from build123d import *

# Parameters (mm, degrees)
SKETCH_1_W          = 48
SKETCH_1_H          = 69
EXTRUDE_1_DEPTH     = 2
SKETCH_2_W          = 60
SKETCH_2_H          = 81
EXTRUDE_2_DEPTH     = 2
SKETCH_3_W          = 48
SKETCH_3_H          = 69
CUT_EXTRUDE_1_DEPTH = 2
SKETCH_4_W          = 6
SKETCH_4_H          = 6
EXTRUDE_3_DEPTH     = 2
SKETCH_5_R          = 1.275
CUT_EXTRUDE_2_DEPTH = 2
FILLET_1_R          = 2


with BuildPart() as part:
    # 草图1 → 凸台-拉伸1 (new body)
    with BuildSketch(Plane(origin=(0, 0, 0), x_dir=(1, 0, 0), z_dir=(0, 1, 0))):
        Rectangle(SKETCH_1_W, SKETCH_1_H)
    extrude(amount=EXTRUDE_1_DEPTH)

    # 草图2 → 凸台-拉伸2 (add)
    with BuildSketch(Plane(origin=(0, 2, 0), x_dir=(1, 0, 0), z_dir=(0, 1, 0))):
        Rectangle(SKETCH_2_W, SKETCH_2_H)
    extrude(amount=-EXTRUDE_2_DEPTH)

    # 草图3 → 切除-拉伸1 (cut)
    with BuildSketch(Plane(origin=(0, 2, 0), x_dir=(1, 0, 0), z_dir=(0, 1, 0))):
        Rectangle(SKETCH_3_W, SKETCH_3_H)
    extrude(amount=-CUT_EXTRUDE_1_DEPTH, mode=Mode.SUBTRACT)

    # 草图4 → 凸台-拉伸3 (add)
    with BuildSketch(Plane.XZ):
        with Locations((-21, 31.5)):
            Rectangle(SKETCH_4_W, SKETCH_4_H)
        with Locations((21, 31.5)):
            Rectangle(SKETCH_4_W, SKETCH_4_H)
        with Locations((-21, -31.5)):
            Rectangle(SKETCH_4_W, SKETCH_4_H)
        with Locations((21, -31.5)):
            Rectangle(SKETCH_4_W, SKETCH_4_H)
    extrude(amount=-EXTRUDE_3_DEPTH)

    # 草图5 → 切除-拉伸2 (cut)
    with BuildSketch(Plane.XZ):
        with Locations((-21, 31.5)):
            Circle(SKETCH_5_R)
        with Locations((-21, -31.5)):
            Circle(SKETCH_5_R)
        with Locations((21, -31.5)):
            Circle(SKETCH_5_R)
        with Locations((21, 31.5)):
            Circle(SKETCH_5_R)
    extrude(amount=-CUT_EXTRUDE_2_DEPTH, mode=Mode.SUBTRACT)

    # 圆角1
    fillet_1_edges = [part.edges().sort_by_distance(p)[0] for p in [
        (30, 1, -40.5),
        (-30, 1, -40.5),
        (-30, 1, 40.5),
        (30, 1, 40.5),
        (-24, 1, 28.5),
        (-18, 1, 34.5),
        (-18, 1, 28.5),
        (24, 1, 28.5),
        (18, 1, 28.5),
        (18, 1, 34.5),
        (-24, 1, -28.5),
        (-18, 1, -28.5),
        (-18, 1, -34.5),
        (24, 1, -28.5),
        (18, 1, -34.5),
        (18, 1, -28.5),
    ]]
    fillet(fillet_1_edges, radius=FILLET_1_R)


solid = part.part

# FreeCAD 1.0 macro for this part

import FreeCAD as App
import Part
import Sketcher


def edges_at(feature, points):
    """Names of the edges that pass closest to the given points."""
    edges = feature.Shape.Edges
    near = lambda p: min(range(len(edges)), key=lambda i: edges[i].distToShape(Part.Vertex(*p))[0])
    return sorted({f"Edge{near(p) + 1}" for p in points})


def add_polygon(sketch, points):
    """Adds a closed chain of lines whose ends are joined by coincident constraints."""
    first, n = sketch.GeometryCount, len(points)
    for a, b in zip(points, points[1:] + points[:1]):
        sketch.addGeometry(Part.LineSegment(App.Vector(*a, 0), App.Vector(*b, 0)), False)
    for i in range(n):
        sketch.addConstraint(Sketcher.Constraint("Coincident", first + i, 2, first + (i + 1) % n, 1))

doc = App.newDocument("Part")
body = doc.addObject("PartDesign::Body", "Body")

sketch1 = body.newObject("Sketcher::SketchObject", "Sketch")
sketch1.AttachmentSupport = (doc.getObject("XZ_Plane"), [""])
sketch1.MapMode = "FlatFace"
add_polygon(sketch1, [(-24, -34), (-24, 34), (24, 34), (24, -34)])
sketch1.addConstraint(Sketcher.Constraint("Vertical", 0))
sketch1.addConstraint(Sketcher.Constraint("Horizontal", 1))
sketch1.addConstraint(Sketcher.Constraint("Vertical", 2))
sketch1.addConstraint(Sketcher.Constraint("Horizontal", 3))
sketch1.addConstraint(Sketcher.Constraint("Symmetric", 0, 2, 2, 2, -1, 1))
sketch1.addConstraint(Sketcher.Constraint("DistanceX", 1, 1, 1, 2, 48.0))
sketch1.addConstraint(Sketcher.Constraint("DistanceY", 0, 1, 0, 2, 69.0))
pad1 = body.newObject("PartDesign::Pad", "Pad")
pad1.Profile = sketch1
pad1.Length = 2
pad1.Reversed = True

sketch2 = body.newObject("Sketcher::SketchObject", "Sketch001")
sketch2.AttachmentSupport = (doc.getObject("XZ_Plane"), [""])
sketch2.MapMode = "FlatFace"
sketch2.AttachmentOffset = App.Placement(App.Vector(0, 0, -2), App.Rotation())
add_polygon(sketch2, [(-30, -40), (-30, 40), (30, 40), (30, -40)])
sketch2.addConstraint(Sketcher.Constraint("Vertical", 0))
sketch2.addConstraint(Sketcher.Constraint("Horizontal", 1))
sketch2.addConstraint(Sketcher.Constraint("Vertical", 2))
sketch2.addConstraint(Sketcher.Constraint("Horizontal", 3))
sketch2.addConstraint(Sketcher.Constraint("Symmetric", 0, 2, 2, 2, -1, 1))
sketch2.addConstraint(Sketcher.Constraint("DistanceX", 1, 1, 1, 2, 60.0))
sketch2.addConstraint(Sketcher.Constraint("DistanceY", 0, 1, 0, 2, 81.0))
pad2 = body.newObject("PartDesign::Pad", "Pad001")
pad2.Profile = sketch2
pad2.Length = 2

sketch3 = body.newObject("Sketcher::SketchObject", "Sketch002")
sketch3.AttachmentSupport = (doc.getObject("XZ_Plane"), [""])
sketch3.MapMode = "FlatFace"
sketch3.AttachmentOffset = App.Placement(App.Vector(0, 0, -2), App.Rotation())
add_polygon(sketch3, [(-24, -34), (-24, 34), (24, 34), (24, -34)])
sketch3.addConstraint(Sketcher.Constraint("Vertical", 0))
sketch3.addConstraint(Sketcher.Constraint("Horizontal", 1))
sketch3.addConstraint(Sketcher.Constraint("Vertical", 2))
sketch3.addConstraint(Sketcher.Constraint("Horizontal", 3))
sketch3.addConstraint(Sketcher.Constraint("Symmetric", 0, 2, 2, 2, -1, 1))
sketch3.addConstraint(Sketcher.Constraint("DistanceX", 1, 1, 1, 2, 48.0))
sketch3.addConstraint(Sketcher.Constraint("DistanceY", 0, 1, 0, 2, 69.0))
pocket1 = body.newObject("PartDesign::Pocket", "Pocket")
pocket1.Profile = sketch3
pocket1.Length = 2
pocket1.Reversed = True

sketch4 = body.newObject("Sketcher::SketchObject", "Sketch003")
sketch4.AttachmentSupport = (doc.getObject("XZ_Plane"), [""])
sketch4.MapMode = "FlatFace"
add_polygon(sketch4, [(-24, 34), (-24, 28), (-18, 28), (-18, 34)])
add_polygon(sketch4, [(18, 34), (18, 28), (24, 28), (24, 34)])
add_polygon(sketch4, [(-24, -28), (-24, -34), (-18, -34), (-18, -28)])
add_polygon(sketch4, [(18, -28), (18, -34), (24, -34), (24, -28)])
sketch4.addConstraint(Sketcher.Constraint("Vertical", 0))
sketch4.addConstraint(Sketcher.Constraint("Horizontal", 1))
sketch4.addConstraint(Sketcher.Constraint("Vertical", 2))
sketch4.addConstraint(Sketcher.Constraint("Horizontal", 3))
sketch4.addConstraint(Sketcher.Constraint("Vertical", 4))
sketch4.addConstraint(Sketcher.Constraint("Horizontal", 5))
sketch4.addConstraint(Sketcher.Constraint("Vertical", 6))
sketch4.addConstraint(Sketcher.Constraint("Horizontal", 7))
sketch4.addConstraint(Sketcher.Constraint("Vertical", 8))
sketch4.addConstraint(Sketcher.Constraint("Horizontal", 9))
sketch4.addConstraint(Sketcher.Constraint("Vertical", 10))
sketch4.addConstraint(Sketcher.Constraint("Horizontal", 11))
sketch4.addConstraint(Sketcher.Constraint("Vertical", 12))
sketch4.addConstraint(Sketcher.Constraint("Horizontal", 13))
sketch4.addConstraint(Sketcher.Constraint("Vertical", 14))
sketch4.addConstraint(Sketcher.Constraint("Horizontal", 15))
sketch4.addConstraint(Sketcher.Constraint("Symmetric", 6, 2, 8, 2, -1, 1))
sketch4.addConstraint(Sketcher.Constraint("Symmetric", 4, 2, 10, 2, -1, 1))
sketch4.addConstraint(Sketcher.Constraint("Symmetric", 2, 2, 12, 2, -1, 1))
sketch4.addConstraint(Sketcher.Constraint("Symmetric", 0, 2, 14, 2, -1, 1))
sketch4.addConstraint(Sketcher.Constraint("Symmetric", 1, 2, 4, 2, -2))
sketch4.addConstraint(Sketcher.Constraint("Symmetric", 3, 2, 6, 2, -2))
sketch4.addConstraint(Sketcher.Constraint("Equal", 15, 0))
sketch4.addConstraint(Sketcher.Constraint("DistanceX", 1, 1, 1, 2, 6.0))
sketch4.addConstraint(Sketcher.Constraint("DistanceX", 0, 2, -1, 1, 24.0))
sketch4.addConstraint(Sketcher.Constraint("DistanceY", 8, 2, 0, 2, 63.0))
pad3 = body.newObject("PartDesign::Pad", "Pad002")
pad3.Profile = sketch4
pad3.Length = 2
pad3.Reversed = True

sketch5 = body.newObject("Sketcher::SketchObject", "Sketch004")
sketch5.AttachmentSupport = (doc.getObject("XZ_Plane"), [""])
sketch5.MapMode = "FlatFace"
sketch5.addGeometry(Part.Circle(App.Vector(-21, 31.5, 0), App.Vector(0, 0, 1), 1.3), False)
sketch5.addGeometry(Part.Circle(App.Vector(-21, -31.5, 0), App.Vector(0, 0, 1), 1.3), False)
sketch5.addGeometry(Part.Circle(App.Vector(21, -31.5, 0), App.Vector(0, 0, 1), 1.3), False)
sketch5.addGeometry(Part.Circle(App.Vector(21, 31.5, 0), App.Vector(0, 0, 1), 1.3), False)
sketch5.addConstraint(Sketcher.Constraint("Equal", 0, 1))
sketch5.addConstraint(Sketcher.Constraint("Equal", 1, 2))
sketch5.addConstraint(Sketcher.Constraint("Equal", 2, 3))
sketch5.addConstraint(Sketcher.Constraint("Symmetric", 0, 3, 2, 3, -1, 1))
sketch5.addConstraint(Sketcher.Constraint("Symmetric", 1, 3, 3, 3, -1, 1))
sketch5.addConstraint(Sketcher.Constraint("Symmetric", 1, 3, 2, 3, -2))
sketch5.addConstraint(Sketcher.Constraint("Diameter", 0, 2.55))
sketch5.addConstraint(Sketcher.Constraint("DistanceX", 0, 3, -1, 1, 21.0))
sketch5.addConstraint(Sketcher.Constraint("DistanceY", 1, 3, 0, 3, 63.0))
pocket2 = body.newObject("PartDesign::Pocket", "Pocket001")
pocket2.Profile = sketch5
pocket2.Length = 2
doc.recompute()

fillet = body.newObject("PartDesign::Fillet", "Fillet")
fillet.Base = (pocket2, edges_at(pocket2, [
    (30, 1, -40.5),
    (-30, 1, -40.5),
    (-30, 1, 40.5),
    (30, 1, 40.5),
    (-24, 1, 28.5),
    (-18, 1, 34.5),
    (-18, 1, 28.5),
    (24, 1, 28.5),
    (18, 1, 28.5),
    (18, 1, 34.5),
    (-24, 1, -28.5),
    (-18, 1, -28.5),
    (-18, 1, -34.5),
    (24, 1, -28.5),
    (18, 1, -34.5),
    (18, 1, -28.5),
]))
fillet.Radius = 2

doc.recompute()
